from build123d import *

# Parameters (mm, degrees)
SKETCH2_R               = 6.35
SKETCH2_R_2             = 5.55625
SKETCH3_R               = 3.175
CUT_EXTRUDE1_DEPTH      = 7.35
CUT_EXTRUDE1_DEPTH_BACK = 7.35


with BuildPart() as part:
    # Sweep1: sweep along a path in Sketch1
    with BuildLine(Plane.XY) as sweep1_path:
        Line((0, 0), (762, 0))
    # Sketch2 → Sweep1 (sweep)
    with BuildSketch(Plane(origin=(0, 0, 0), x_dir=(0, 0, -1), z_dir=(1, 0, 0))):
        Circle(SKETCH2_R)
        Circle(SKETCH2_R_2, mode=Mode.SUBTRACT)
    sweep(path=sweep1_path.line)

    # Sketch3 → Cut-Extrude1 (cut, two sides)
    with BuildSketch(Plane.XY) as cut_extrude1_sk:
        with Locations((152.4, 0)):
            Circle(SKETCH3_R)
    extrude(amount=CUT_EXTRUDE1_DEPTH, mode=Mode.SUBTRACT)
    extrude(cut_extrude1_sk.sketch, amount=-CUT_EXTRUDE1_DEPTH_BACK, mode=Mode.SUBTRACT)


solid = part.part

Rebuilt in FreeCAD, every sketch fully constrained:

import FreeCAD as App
import Part
import Sketcher

V = App.Vector
Q = App.Units.Quantity

doc = App.newDocument("Part")
body = doc.addObject("PartDesign::Body", "Body")

sketch1 = doc.addObject("Sketcher::SketchObject", "Sketch")
body.addObject(sketch1)
sketch1.AttachmentSupport = (doc.YZ_Plane, [""])
sketch1.MapMode = "FlatFace"
sketch1.addGeometry(Part.Circle(V(0, 0, 0), V(0, 0, 1), 6), False)
sketch1.addGeometry(Part.Circle(V(0, 0, 0), V(0, 0, 1), 6), False)
sketch1.addConstraint(Sketcher.Constraint("Coincident", 0, 3, -1, 1))
sketch1.addConstraint(Sketcher.Constraint("Coincident", 1, 3, -1, 1))
sketch1.addConstraint(Sketcher.Constraint("Diameter", 0, Q("0.5 in")))
sketch1.addConstraint(Sketcher.Constraint("Diameter", 1, Q("0.4375 in")))

sketch2 = doc.addObject("Sketcher::SketchObject", "Sketch001")
body.addObject(sketch2)
sketch2.AttachmentSupport = (doc.XY_Plane, [""])
sketch2.MapMode = "FlatFace"
sketch2.addGeometry(Part.LineSegment(V(0, 0, 0), V(762, 0, 0)), False)
sketch2.addConstraint(Sketcher.Constraint("Horizontal", 0))
sketch2.addConstraint(Sketcher.Constraint("Coincident", 0, 1, -1, 1))
sketch2.addConstraint(Sketcher.Constraint("DistanceX", 0, 1, 0, 2, Q("30 in")))
doc.recompute()

additivepipe = doc.addObject("PartDesign::AdditivePipe", "AdditivePipe")
body.addObject(additivepipe)
additivepipe.Profile = sketch1
additivepipe.Spine = (sketch2, ["Edge1"])

sketch3 = doc.addObject("Sketcher::SketchObject", "Sketch002")
body.addObject(sketch3)
sketch3.AttachmentSupport = (doc.XY_Plane, [""])
sketch3.MapMode = "FlatFace"
sketch3.addGeometry(Part.Circle(V(152.4, 0, 0), V(0, 0, 1), 3.2), False)
sketch3.addConstraint(Sketcher.Constraint("PointOnObject", 0, 3, -1))
sketch3.addConstraint(Sketcher.Constraint("Diameter", 0, Q("0.25 in")))
sketch3.addConstraint(Sketcher.Constraint("DistanceX", -1, 1, 0, 3, Q("6 in")))
pocket1 = doc.addObject("PartDesign::Pocket", "Pocket")
body.addObject(pocket1)
pocket1.Profile = sketch3
pocket1.Type = "ThroughAll"
pocket1.Midplane = True

doc.recompute()
